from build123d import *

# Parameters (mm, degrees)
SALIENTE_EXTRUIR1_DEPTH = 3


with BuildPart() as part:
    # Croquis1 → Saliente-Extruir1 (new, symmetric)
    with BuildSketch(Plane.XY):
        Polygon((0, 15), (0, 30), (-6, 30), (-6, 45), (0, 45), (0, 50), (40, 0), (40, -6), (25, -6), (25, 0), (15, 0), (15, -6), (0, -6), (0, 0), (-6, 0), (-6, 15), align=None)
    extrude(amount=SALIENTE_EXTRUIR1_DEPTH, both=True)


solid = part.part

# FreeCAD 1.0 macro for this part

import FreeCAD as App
import Part
import Sketcher

V = App.Vector


def add_polygon(sketch, points):
    """Adds a closed chain of lines whose ends are joined by coincident constraints."""
    first, n = sketch.GeometryCount, len(points)
    for a, b in zip(points, points[1:] + points[:1]):
        sketch.addGeometry(Part.LineSegment(App.Vector(*a, 0), App.Vector(*b, 0)), False)
    for i in range(n):
        sketch.addConstraint(Sketcher.Constraint("Coincident", first + i, 2, first + (i + 1) % n, 1))

doc = App.newDocument("Part")
params = doc.addObject("Spreadsheet::Sheet", "Params")
for row, (alias, value) in enumerate([
    ("sketch1_width", "6 mm"),
    ("sketch1_width2", "15 mm"),
    ("sketch1_width3", "10 mm"),
    ("sketch1_height", "5 mm"),
    ("pad1_length", "6 mm"),
], start=1):
    params.set(f"A{row}", alias)
    params.set(f"B{row}", "=" + value)
    params.setAlias(f"B{row}", alias)

body = doc.addObject("PartDesign::Body", "Body")

# Sketch on XY plane
sketch1 = body.newObject("Sketcher::SketchObject", "Sketch")
sketch1.AttachmentSupport = (doc.getObject("XY_Plane"), [""])
sketch1.MapMode = "FlatFace"
add_polygon(sketch1, [(0, 30), (0, 15), (-6, 15), (-6, 0), (0, 0), (0, -6), (15, -6), (15, 0), (25, 0), (25, -6), (40, -6), (40, 0), (0, 50), (0, 45), (-6, 45), (-6, 30)])  # lines 0-15
sketch1.addConstraint([
    Sketcher.Constraint("Vertical", 0),
    Sketcher.Constraint("Horizontal", 1),
    Sketcher.Constraint("Vertical", 2),
    Sketcher.Constraint("Horizontal", 3),
    Sketcher.Constraint("Vertical", 4),
    Sketcher.Constraint("Horizontal", 5),
    Sketcher.Constraint("Vertical", 6),
    Sketcher.Constraint("Horizontal", 7),
    Sketcher.Constraint("Vertical", 8),
    Sketcher.Constraint("Horizontal", 9),
    Sketcher.Constraint("Vertical", 10),
    Sketcher.Constraint("Vertical", 12),
    Sketcher.Constraint("Horizontal", 13),
    Sketcher.Constraint("Vertical", 14),
    Sketcher.Constraint("Horizontal", 15),
    Sketcher.Constraint("Coincident", 3, 2, -1, 1),
    Sketcher.Constraint("PointOnObject", 0, 2, -2),
    Sketcher.Constraint("PointOnObject", 6, 2, -1),
    Sketcher.Constraint("PointOnObject", 10, 2, -1),
    Sketcher.Constraint("PointOnObject", 11, 2, -2),
    Sketcher.Constraint("Horizontal", 5, 2, 8, 2),
    Sketcher.Constraint("Vertical", 2, 2, 13, 2),
    Sketcher.Constraint("Equal", 5, 9),
    Sketcher.Constraint("Equal", 9, 0),
    Sketcher.Constraint("Equal", 0, 2),
    Sketcher.Constraint("Equal", 15, 4),
    Sketcher.Constraint("Equal", 2, 14),
    Sketcher.Constraint("DistanceX", 1, 2, 1, 1, 6.0),
    Sketcher.Constraint("DistanceX", 5, 1, 5, 2, 15.0),
    Sketcher.Constraint("DistanceX", 7, 1, 7, 2, 10.0),
    Sketcher.Constraint("DistanceY", 12, 2, 12, 1, 5.0),
])
sketch1.setExpression("Constraints[43]", "Params.sketch1_width")
sketch1.setExpression("Constraints[44]", "Params.sketch1_width2")
sketch1.setExpression("Constraints[45]", "Params.sketch1_width3")
sketch1.setExpression("Constraints[46]", "Params.sketch1_height")
pad1 = body.newObject("PartDesign::Pad", "Pad")
pad1.Profile = sketch1
pad1.setExpression("Length", "Params.pad1_length")
pad1.Midplane = True

doc.recompute()
